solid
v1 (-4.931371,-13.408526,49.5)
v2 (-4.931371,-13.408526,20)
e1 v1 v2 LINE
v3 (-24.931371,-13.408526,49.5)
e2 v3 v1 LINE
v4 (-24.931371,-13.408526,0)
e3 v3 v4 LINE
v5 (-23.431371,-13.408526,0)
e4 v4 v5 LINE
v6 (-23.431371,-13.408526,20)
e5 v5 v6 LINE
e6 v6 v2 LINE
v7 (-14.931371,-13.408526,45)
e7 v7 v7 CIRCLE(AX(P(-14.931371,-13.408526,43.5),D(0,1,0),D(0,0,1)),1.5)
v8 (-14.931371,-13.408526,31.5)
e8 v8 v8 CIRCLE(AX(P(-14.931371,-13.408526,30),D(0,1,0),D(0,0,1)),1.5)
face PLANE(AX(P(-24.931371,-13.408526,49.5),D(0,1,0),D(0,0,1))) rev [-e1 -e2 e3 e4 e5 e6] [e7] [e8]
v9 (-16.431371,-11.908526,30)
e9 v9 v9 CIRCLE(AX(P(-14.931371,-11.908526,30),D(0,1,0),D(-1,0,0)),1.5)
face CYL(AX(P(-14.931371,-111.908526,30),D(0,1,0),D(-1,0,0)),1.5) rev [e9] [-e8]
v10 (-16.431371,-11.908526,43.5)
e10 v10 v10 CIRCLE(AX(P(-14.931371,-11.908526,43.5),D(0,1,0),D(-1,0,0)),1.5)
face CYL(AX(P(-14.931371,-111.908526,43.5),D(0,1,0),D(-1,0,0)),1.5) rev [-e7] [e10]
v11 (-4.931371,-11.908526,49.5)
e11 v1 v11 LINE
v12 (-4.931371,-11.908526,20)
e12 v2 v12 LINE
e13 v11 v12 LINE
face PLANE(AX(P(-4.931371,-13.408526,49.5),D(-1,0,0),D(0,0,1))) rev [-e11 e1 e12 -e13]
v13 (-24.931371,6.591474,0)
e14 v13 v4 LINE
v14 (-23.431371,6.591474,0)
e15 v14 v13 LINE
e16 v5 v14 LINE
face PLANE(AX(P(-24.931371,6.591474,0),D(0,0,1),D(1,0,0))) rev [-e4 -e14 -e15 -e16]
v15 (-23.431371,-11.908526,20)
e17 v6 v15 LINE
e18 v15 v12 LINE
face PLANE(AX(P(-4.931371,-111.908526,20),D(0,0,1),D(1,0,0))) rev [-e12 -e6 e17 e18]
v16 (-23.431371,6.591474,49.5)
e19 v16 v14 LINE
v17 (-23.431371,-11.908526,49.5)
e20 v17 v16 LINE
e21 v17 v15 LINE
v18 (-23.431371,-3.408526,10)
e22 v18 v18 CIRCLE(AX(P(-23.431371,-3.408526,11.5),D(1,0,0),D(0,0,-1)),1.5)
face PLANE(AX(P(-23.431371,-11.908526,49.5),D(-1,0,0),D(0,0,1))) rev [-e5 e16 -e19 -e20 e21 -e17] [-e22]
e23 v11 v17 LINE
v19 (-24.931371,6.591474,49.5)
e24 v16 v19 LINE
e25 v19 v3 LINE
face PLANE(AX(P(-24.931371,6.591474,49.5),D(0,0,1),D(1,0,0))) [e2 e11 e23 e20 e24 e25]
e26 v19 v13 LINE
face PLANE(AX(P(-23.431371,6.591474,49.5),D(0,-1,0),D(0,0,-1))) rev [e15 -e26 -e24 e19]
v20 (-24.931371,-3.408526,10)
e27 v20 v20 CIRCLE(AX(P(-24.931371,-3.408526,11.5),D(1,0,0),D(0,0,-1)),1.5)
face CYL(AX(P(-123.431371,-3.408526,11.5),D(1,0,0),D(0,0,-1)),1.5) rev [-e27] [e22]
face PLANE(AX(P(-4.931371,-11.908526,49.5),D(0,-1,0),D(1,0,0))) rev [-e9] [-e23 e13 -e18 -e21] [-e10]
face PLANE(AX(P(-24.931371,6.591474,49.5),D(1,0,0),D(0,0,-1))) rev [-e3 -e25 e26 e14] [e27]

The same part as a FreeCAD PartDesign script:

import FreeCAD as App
import Part
import Sketcher

V = App.Vector


def add_polygon(sketch, points):
    """Adds a closed chain of lines whose ends are joined by coincident constraints."""
    first, n = sketch.GeometryCount, len(points)
    for a, b in zip(points, points[1:] + points[:1]):
        sketch.addGeometry(Part.LineSegment(App.Vector(*a, 0), App.Vector(*b, 0)), False)
    for i in range(n):
        sketch.addConstraint(Sketcher.Constraint("Coincident", first + i, 2, first + (i + 1) % n, 1))

doc = App.newDocument("Part")
body = doc.addObject("PartDesign::Body", "Body")

# Sketch on XY plane
sketch1 = body.newObject("Sketcher::SketchObject", "Sketch")
sketch1.AttachmentSupport = (doc.getObject("XY_Plane"), [""])
sketch1.MapMode = "FlatFace"
add_polygon(sketch1, [(-24.9, 6.6), (-24.9, -13.4), (-4.9, -13.4), (-4.9, -11.9), (-23.4, -11.9), (-23.4, 6.6)])  # lines 0-5
sketch1.addConstraint([
    Sketcher.Constraint("Vertical", 0),
    Sketcher.Constraint("Horizontal", 1),
    Sketcher.Constraint("Vertical", 2),
    Sketcher.Constraint("Horizontal", 3),
    Sketcher.Constraint("Vertical", 4),
    Sketcher.Constraint("Horizontal", 5),
    Sketcher.Constraint("Equal", 1, 0),
    Sketcher.Constraint("Equal", 5, 2),
    Sketcher.Constraint("DistanceX", 1, 1, 1, 2, 20.0),
    Sketcher.Constraint("DistanceX", 3, 2, 3, 1, 18.5),
    Sketcher.Constraint("DistanceX", 0, 2, -1, 1, 24.931371),
    Sketcher.Constraint("DistanceY", 0, 2, -1, 1, 13.408526),
])
pad1 = body.newObject("PartDesign::Pad", "Pad")
pad1.Profile = sketch1
pad1.Length = 49.5

# Sketch on XZ plane
sketch2 = body.newObject("Sketcher::SketchObject", "Sketch001")
sketch2.AttachmentSupport = (doc.getObject("XZ_Plane"), [""])
sketch2.MapMode = "FlatFace"
sketch2.AttachmentOffset = App.Placement(V(0, 0, 11.908526), App.Rotation())
sketch2.addGeometry(Part.Circle(V(-14.9, 43.5, 0), V(0, 0, 1), 1.5), False)  # 0
sketch2.addGeometry(Part.Circle(V(-14.9, 30, 0), V(0, 0, 1), 1.5), False)  # 1
add_polygon(sketch2, [(-4.9, 20), (-4.9, 0), (-23.4, 0), (-23.4, 20)])  # lines 2-5
sketch2.addConstraint([
    Sketcher.Constraint("Vertical", 2),
    Sketcher.Constraint("Horizontal", 3),
    Sketcher.Constraint("Vertical", 4),
    Sketcher.Constraint("Horizontal", 5),
    Sketcher.Constraint("Equal", 0, 1),
    Sketcher.Constraint("PointOnObject", 2, 2, -1),
    Sketcher.Constraint("Vertical", 0, 3, 1, 3),
    Sketcher.Constraint("Diameter", 0, 3.0),
    Sketcher.Constraint("DistanceY", 2, 2, 2, 1, 20.0),
    Sketcher.Constraint("DistanceX", 3, 2, 3, 1, 18.5),
    Sketcher.Constraint("DistanceY", -1, 1, 1, 3, 30.0),
    Sketcher.Constraint("DistanceX", 1, 3, 2, 2, 10.0),
    Sketcher.Constraint("DistanceY", -1, 1, 0, 3, 43.5),
    Sketcher.Constraint("DistanceX", 0, 3, -1, 1, 14.931371),
])
pocket1 = body.newObject("PartDesign::Pocket", "Pocket")
pocket1.Profile = sketch2
pocket1.Length = 100
pocket1.Reversed = True

# Sketch on YZ plane
sketch3 = body.newObject("Sketcher::SketchObject", "Sketch002")
sketch3.AttachmentSupport = (doc.getObject("YZ_Plane"), [""])
sketch3.MapMode = "FlatFace"
sketch3.AttachmentOffset = App.Placement(V(0, 0, -23.431371), App.Rotation())
sketch3.addGeometry(Part.Circle(V(-3.4, 11.5, 0), V(0, 0, 1), 1.5), False)
sketch3.addConstraint([
    Sketcher.Constraint("Diameter", 0, 3.0),
    Sketcher.Constraint("DistanceY", -1, 1, 0, 3, 11.5),
    Sketcher.Constraint("DistanceX", 0, 3, -1, 1, 3.408526),
])
pocket2 = body.newObject("PartDesign::Pocket", "Pocket001")
pocket2.Profile = sketch3
pocket2.Length = 100

doc.recompute()
